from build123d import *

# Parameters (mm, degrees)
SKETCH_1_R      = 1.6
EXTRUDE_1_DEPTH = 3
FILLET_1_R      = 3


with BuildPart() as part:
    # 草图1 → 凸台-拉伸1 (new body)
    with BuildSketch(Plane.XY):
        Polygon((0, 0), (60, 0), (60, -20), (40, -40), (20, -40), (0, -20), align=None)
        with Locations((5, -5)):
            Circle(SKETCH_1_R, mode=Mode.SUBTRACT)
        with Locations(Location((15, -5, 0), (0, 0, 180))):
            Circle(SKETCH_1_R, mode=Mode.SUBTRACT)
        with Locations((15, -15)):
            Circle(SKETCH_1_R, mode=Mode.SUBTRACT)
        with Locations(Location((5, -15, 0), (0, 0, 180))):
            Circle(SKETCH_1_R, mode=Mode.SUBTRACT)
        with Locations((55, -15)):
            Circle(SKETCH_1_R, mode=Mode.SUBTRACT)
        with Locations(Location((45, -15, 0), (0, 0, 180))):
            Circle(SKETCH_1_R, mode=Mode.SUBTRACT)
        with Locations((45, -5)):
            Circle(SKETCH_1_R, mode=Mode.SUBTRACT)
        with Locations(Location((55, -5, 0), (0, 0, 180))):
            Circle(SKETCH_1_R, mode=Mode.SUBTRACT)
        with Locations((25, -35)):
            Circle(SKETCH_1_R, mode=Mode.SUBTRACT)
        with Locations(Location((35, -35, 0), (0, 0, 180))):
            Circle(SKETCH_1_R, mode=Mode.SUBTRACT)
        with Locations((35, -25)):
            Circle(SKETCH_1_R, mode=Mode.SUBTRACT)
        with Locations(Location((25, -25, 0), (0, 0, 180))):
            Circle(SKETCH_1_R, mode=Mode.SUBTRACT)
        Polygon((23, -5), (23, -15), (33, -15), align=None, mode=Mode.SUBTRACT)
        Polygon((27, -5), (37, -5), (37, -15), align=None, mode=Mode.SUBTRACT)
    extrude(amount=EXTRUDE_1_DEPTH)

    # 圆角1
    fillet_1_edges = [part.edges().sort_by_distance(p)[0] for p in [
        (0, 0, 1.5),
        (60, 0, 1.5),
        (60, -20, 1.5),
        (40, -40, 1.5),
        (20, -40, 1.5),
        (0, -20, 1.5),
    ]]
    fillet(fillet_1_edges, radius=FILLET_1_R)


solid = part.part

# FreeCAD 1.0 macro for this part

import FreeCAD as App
import Part
import Sketcher
Q = App.Units.Quantity


def edges_at(feature, points):
    """Names of the edges that pass closest to the given points."""
    edges = feature.Shape.Edges
    near = lambda p: min(range(len(edges)), key=lambda i: edges[i].distToShape(Part.Vertex(*p))[0])
    return sorted({f"Edge{near(p) + 1}" for p in points})

doc = App.newDocument("Part")
body = doc.addObject("PartDesign::Body", "Body")

# Sketch on XY plane
sketch1 = body.newObject("Sketcher::SketchObject", "Sketch")
sketch1.AttachmentSupport = (doc.getObject("XY_Plane"), [""])
sketch1.MapMode = "FlatFace"
sketch1.addGeometry([
    Part.LineSegment(App.Vector(60, 0, 0), App.Vector(0, 0, 0)),  # 0
    Part.LineSegment(App.Vector(0, 0, 0), App.Vector(0, -20, 0)),  # 1
    Part.LineSegment(App.Vector(0, -20, 0), App.Vector(20, -40, 0)),  # 2
    Part.LineSegment(App.Vector(20, -40, 0), App.Vector(40, -40, 0)),  # 3
    Part.LineSegment(App.Vector(40, -40, 0), App.Vector(60, -20, 0)),  # 4
    Part.LineSegment(App.Vector(60, -20, 0), App.Vector(60, 0, 0)),  # 5
    Part.Circle(App.Vector(35, -35, 0), App.Vector(0, 0, 1), 1.6),  # 6
    Part.Circle(App.Vector(35, -25, 0), App.Vector(0, 0, 1), 1.6),  # 7
    Part.Circle(App.Vector(25, -35, 0), App.Vector(0, 0, 1), 1.6),  # 8
    Part.Circle(App.Vector(25, -25, 0), App.Vector(0, 0, 1), 1.6),  # 9
    Part.Circle(App.Vector(55, -15, 0), App.Vector(0, 0, 1), 1.6),  # 10
    Part.Circle(App.Vector(45, -15, 0), App.Vector(0, 0, 1), 1.6),  # 11
    Part.Circle(App.Vector(55, -5, 0), App.Vector(0, 0, 1), 1.6),  # 12
    Part.Circle(App.Vector(45, -5, 0), App.Vector(0, 0, 1), 1.6),  # 13
    Part.LineSegment(App.Vector(27, -5, 0), App.Vector(37, -5, 0)),  # 14
    Part.LineSegment(App.Vector(37, -5, 0), App.Vector(37, -15, 0)),  # 15
    Part.LineSegment(App.Vector(37, -15, 0), App.Vector(27, -5, 0)),  # 16
    Part.Circle(App.Vector(15, -15, 0), App.Vector(0, 0, 1), 1.6),  # 17
    Part.Circle(App.Vector(5, -15, 0), App.Vector(0, 0, 1), 1.6),  # 18
    Part.LineSegment(App.Vector(23, -5, 0), App.Vector(33, -15, 0)),  # 19
    Part.LineSegment(App.Vector(33, -15, 0), App.Vector(23, -15, 0)),  # 20
    Part.LineSegment(App.Vector(23, -15, 0), App.Vector(23, -5, 0)),  # 21
    Part.Circle(App.Vector(15, -5, 0), App.Vector(0, 0, 1), 1.6),  # 22
    Part.Circle(App.Vector(5, -5, 0), App.Vector(0, 0, 1), 1.6),  # 23
], False)
sketch1.addConstraint([
    Sketcher.Constraint("Coincident", 0, 2, 1, 1),
    Sketcher.Constraint("Coincident", 1, 2, 2, 1),
    Sketcher.Constraint("Coincident", 2, 2, 3, 1),
    Sketcher.Constraint("Coincident", 3, 2, 4, 1),
    Sketcher.Constraint("Coincident", 4, 2, 5, 1),
    Sketcher.Constraint("Coincident", 5, 2, 0, 1),
    Sketcher.Constraint("Coincident", 14, 2, 15, 1),
    Sketcher.Constraint("Coincident", 15, 2, 16, 1),
    Sketcher.Constraint("Coincident", 16, 2, 14, 1),
    Sketcher.Constraint("Coincident", 19, 2, 20, 1),
    Sketcher.Constraint("Coincident", 20, 2, 21, 1),
    Sketcher.Constraint("Coincident", 21, 2, 19, 1),
    Sketcher.Constraint("Horizontal", 0),
    Sketcher.Constraint("Vertical", 1),
    Sketcher.Constraint("Horizontal", 3),
    Sketcher.Constraint("Vertical", 5),
    Sketcher.Constraint("Horizontal", 14),
    Sketcher.Constraint("Vertical", 15),
    Sketcher.Constraint("Horizontal", 20),
    Sketcher.Constraint("Vertical", 21),
    Sketcher.Constraint("Coincident", 0, 2, -1, 1),
    Sketcher.Constraint("Equal", 6, 7),
    Sketcher.Constraint("Equal", 7, 8),
    Sketcher.Constraint("Equal", 8, 9),
    Sketcher.Constraint("Equal", 9, 10),
    Sketcher.Constraint("Equal", 10, 11),
    Sketcher.Constraint("Equal", 11, 12),
    Sketcher.Constraint("Equal", 12, 13),
    Sketcher.Constraint("Equal", 13, 17),
    Sketcher.Constraint("Equal", 17, 18),
    Sketcher.Constraint("Equal", 18, 22),
    Sketcher.Constraint("Equal", 22, 23),
    Sketcher.Constraint("Perpendicular", 2, 4),
    Sketcher.Constraint("Perpendicular", 4, 16),
    Sketcher.Constraint("Parallel", 16, 19),
    Sketcher.Constraint("Horizontal", 6, 3, 8, 3),
    Sketcher.Constraint("Horizontal", 7, 3, 9, 3),
    Sketcher.Constraint("Horizontal", 10, 3, 11, 3),
    Sketcher.Constraint("Horizontal", 12, 3, 13, 3),
    Sketcher.Constraint("Horizontal", 11, 3, 17, 3),
    Sketcher.Constraint("Horizontal", 17, 3, 18, 3),
    Sketcher.Constraint("Horizontal", 13, 3, 22, 3),
    Sketcher.Constraint("Horizontal", 22, 3, 23, 3),
    Sketcher.Constraint("Horizontal", 1, 2, 4, 2),
    Sketcher.Constraint("Horizontal", 23, 3, 14, 2),
    Sketcher.Constraint("Horizontal", 18, 3, 15, 2),
    Sketcher.Constraint("Horizontal", 15, 2, 19, 2),
    Sketcher.Constraint("Horizontal", 16, 2, 21, 2),
    Sketcher.Constraint("Vertical", 6, 3, 7, 3),
    Sketcher.Constraint("Vertical", 8, 3, 9, 3),
    Sketcher.Constraint("Vertical", 10, 3, 12, 3),
    Sketcher.Constraint("Vertical", 11, 3, 13, 3),
    Sketcher.Constraint("Vertical", 17, 3, 22, 3),
    Sketcher.Constraint("Vertical", 18, 3, 23, 3),
    Sketcher.Constraint("Equal", 3, 1),
    Sketcher.Constraint("Equal", 20, 15),
    Sketcher.Constraint("Diameter", 6, Q("3.2 mm")),
    Sketcher.Constraint("DistanceX", 0, 2, 0, 1, Q("60 mm")),
    Sketcher.Constraint("DistanceX", 3, 1, 3, 2, Q("20 mm")),
    Sketcher.Constraint("DistanceX", 14, 1, 14, 2, Q("10 mm")),
    Sketcher.Constraint("DistanceX", -1, 1, 6, 3, Q("35 mm")),
    Sketcher.Constraint("DistanceY", 6, 3, -1, 1, Q("35 mm")),
    Sketcher.Constraint("DistanceY", 7, 3, -1, 1, Q("25 mm")),
    Sketcher.Constraint("DistanceX", -1, 1, 8, 3, Q("25 mm")),
    Sketcher.Constraint("DistanceX", -1, 1, 10, 3, Q("55 mm")),
    Sketcher.Constraint("DistanceY", 10, 3, -1, 1, Q("15 mm")),
    Sketcher.Constraint("DistanceX", -1, 1, 11, 3, Q("45 mm")),
    Sketcher.Constraint("DistanceX", -1, 1, 17, 3, Q("15 mm")),
    Sketcher.Constraint("DistanceX", -1, 1, 18, 3, Q("5 mm")),
    Sketcher.Constraint("DistanceX", -1, 1, 14, 2, Q("37 mm")),
    Sketcher.Constraint("DistanceX", -1, 1, 19, 2, Q("33 mm")),
])
pad1 = body.newObject("PartDesign::Pad", "Pad")
pad1.Profile = sketch1
pad1.Length = 3
doc.recompute()

fillet = body.newObject("PartDesign::Fillet", "Fillet")
fillet.Base = (pad1, edges_at(pad1, [
    (0, 0, 1.5),
    (60, 0, 1.5),
    (60, -20, 1.5),
    (40, -40, 1.5),
    (20, -40, 1.5),
    (0, -20, 1.5),
]))
fillet.Radius = 3

doc.recompute()
